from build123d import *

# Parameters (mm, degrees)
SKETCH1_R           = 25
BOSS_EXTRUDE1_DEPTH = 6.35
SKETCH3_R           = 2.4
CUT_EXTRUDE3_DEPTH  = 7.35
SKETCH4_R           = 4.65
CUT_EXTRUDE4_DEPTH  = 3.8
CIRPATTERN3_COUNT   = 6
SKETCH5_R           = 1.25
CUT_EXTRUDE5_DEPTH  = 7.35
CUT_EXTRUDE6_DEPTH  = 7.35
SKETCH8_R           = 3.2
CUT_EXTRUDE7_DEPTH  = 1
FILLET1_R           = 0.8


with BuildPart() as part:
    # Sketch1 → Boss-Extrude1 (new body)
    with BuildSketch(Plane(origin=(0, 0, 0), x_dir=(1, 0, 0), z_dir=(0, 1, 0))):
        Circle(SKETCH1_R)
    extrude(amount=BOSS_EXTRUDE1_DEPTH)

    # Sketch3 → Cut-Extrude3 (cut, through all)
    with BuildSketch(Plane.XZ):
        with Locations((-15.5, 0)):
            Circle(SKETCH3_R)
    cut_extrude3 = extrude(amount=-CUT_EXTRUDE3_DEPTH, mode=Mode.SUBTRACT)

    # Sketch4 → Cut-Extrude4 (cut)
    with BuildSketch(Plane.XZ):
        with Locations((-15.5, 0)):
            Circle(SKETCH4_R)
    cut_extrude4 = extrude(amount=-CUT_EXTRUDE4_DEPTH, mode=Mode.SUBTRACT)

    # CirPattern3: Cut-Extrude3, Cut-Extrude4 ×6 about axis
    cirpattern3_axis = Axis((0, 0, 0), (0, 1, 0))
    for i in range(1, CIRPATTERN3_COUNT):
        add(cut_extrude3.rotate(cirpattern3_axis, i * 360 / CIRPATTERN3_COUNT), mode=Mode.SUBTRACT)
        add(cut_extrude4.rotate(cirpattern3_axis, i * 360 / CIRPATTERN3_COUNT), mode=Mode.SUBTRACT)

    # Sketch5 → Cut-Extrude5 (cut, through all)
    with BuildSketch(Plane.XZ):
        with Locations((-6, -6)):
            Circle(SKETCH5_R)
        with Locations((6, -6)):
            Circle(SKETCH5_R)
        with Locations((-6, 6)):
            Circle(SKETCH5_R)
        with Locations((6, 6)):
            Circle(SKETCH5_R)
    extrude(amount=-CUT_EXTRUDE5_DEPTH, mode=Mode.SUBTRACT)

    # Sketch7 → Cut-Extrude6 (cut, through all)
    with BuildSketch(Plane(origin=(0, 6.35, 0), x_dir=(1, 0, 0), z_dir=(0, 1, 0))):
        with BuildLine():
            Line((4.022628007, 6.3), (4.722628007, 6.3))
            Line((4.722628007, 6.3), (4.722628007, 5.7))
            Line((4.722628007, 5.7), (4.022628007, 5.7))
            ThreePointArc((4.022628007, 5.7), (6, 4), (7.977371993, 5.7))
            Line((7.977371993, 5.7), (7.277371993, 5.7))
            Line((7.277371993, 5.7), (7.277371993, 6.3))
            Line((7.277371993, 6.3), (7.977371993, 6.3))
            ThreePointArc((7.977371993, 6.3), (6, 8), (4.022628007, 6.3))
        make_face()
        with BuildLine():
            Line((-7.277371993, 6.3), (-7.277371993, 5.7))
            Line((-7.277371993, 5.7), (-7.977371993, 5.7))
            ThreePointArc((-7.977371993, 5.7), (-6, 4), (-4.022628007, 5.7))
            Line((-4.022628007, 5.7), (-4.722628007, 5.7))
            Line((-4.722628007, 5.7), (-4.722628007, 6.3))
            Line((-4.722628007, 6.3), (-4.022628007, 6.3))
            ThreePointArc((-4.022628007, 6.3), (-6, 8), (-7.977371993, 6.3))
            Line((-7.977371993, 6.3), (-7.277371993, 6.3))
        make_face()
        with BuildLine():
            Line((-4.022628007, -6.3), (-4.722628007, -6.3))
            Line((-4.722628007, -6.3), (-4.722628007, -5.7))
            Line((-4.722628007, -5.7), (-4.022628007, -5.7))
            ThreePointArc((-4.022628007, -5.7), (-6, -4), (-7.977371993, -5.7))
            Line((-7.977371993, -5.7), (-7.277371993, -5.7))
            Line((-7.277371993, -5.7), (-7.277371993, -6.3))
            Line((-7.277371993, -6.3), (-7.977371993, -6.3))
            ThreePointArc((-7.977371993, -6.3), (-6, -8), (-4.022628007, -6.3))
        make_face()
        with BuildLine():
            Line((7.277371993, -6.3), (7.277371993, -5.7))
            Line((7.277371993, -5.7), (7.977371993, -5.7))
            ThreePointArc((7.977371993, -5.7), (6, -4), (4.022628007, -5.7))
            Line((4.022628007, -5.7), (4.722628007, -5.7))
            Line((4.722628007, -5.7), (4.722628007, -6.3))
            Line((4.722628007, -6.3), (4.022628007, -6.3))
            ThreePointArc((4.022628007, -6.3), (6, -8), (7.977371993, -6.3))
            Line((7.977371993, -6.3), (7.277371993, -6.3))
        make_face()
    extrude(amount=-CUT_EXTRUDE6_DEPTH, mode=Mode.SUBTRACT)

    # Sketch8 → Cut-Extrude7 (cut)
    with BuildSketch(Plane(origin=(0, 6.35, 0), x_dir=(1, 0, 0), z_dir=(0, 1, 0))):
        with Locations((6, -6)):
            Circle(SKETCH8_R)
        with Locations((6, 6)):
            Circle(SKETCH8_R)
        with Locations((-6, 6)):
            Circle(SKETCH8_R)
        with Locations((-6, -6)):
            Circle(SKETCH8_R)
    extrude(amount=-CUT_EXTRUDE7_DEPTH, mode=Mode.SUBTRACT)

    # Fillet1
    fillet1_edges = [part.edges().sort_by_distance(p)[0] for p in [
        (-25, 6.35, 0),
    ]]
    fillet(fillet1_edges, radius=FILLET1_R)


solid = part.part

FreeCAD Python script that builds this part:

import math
import FreeCAD as App
import Part
import Sketcher
from FreeCAD import Vector


def edges_at(feature, points):
    """Names of the edges that pass closest to the given points."""
    edges = feature.Shape.Edges
    near = lambda p: min(range(len(edges)), key=lambda i: edges[i].distToShape(Part.Vertex(*p))[0])
    return sorted({f"Edge{near(p) + 1}" for p in points})

doc = App.newDocument("Part")
params = doc.addObject("Spreadsheet::Sheet", "Params")
for row, (alias, value) in enumerate([
    ("sketch1_diameter", "50 mm"),
    ("pad1_length", "6.35 mm"),
    ("sketch2_diameter", "4.8 mm"),
    ("sketch3_diameter", "9.3 mm"),
    ("pocket2_length", "3.8 mm"),
    ("sketch4_diameter", "2.5 mm"),
    ("sketch5_radius", "2 mm"),
    ("sketch5_width", "0.7 mm"),
    ("sketch5_height", "0.6 mm"),
    ("sketch6_diameter", "6.4 mm"),
    ("pocket5_length", "1 mm"),
    ("fillet_radius", "0.8 mm"),
], start=1):
    params.set(f"A{row}", alias)
    params.set(f"B{row}", "=" + value)
    params.setAlias(f"B{row}", alias)

body = doc.addObject("PartDesign::Body", "Body")

# Sketch on XZ plane
sketch1 = body.newObject("Sketcher::SketchObject", "Sketch")
sketch1.AttachmentSupport = (doc.getObject("XZ_Plane"), [""])
sketch1.MapMode = "FlatFace"
sketch1.addGeometry(Part.Circle(Vector(0, 0, 0), Vector(0, 0, 1), 25), False)
sketch1.addConstraint(Sketcher.Constraint("Coincident", 0, 3, -1, 1))
sketch1.addConstraint(Sketcher.Constraint("Diameter", 0, 50.0))
sketch1.setExpression("Constraints[1]", "Params.sketch1_diameter")
pad1 = body.newObject("PartDesign::Pad", "Pad")
pad1.Profile = sketch1
pad1.setExpression("Length", "Params.pad1_length")
pad1.Reversed = True

# Sketch on XZ plane
sketch2 = body.newObject("Sketcher::SketchObject", "Sketch001")
sketch2.AttachmentSupport = (doc.getObject("XZ_Plane"), [""])
sketch2.MapMode = "FlatFace"
sketch2.addGeometry(Part.Circle(Vector(-15.5, 0, 0), Vector(0, 0, 1), 2.4), False)
sketch2.addConstraint(Sketcher.Constraint("PointOnObject", 0, 3, -1))
sketch2.addConstraint(Sketcher.Constraint("Diameter", 0, 4.8))
sketch2.addConstraint(Sketcher.Constraint("DistanceX", 0, 3, -1, 1, 15.5))
sketch2.setExpression("Constraints[1]", "Params.sketch2_diameter")
pocket1 = body.newObject("PartDesign::Pocket", "Pocket")
pocket1.Profile = sketch2
pocket1.Type = "ThroughAll"

# Sketch on XZ plane
sketch3 = body.newObject("Sketcher::SketchObject", "Sketch002")
sketch3.AttachmentSupport = (doc.getObject("XZ_Plane"), [""])
sketch3.MapMode = "FlatFace"
sketch3.addGeometry(Part.Circle(Vector(-15.5, 0, 0), Vector(0, 0, 1), 4.7), False)
sketch3.addConstraint(Sketcher.Constraint("PointOnObject", 0, 3, -1))
sketch3.addConstraint(Sketcher.Constraint("Diameter", 0, 9.3))
sketch3.addConstraint(Sketcher.Constraint("DistanceX", 0, 3, -1, 1, 15.5))
sketch3.setExpression("Constraints[1]", "Params.sketch3_diameter")
pocket2 = body.newObject("PartDesign::Pocket", "Pocket001")
pocket2.Profile = sketch3
pocket2.setExpression("Length", "Params.pocket2_length")
doc.recompute()

polarpattern = body.newObject("PartDesign::PolarPattern", "PolarPattern")
polarpattern.Originals = [pocket1, pocket2]
polarpattern.Axis = (doc.getObject("Y_Axis"), [""])
polarpattern.Angle = 360
polarpattern.Occurrences = 6
body.Tip = polarpattern

# Sketch on XZ plane
sketch4 = body.newObject("Sketcher::SketchObject", "Sketch003")
sketch4.AttachmentSupport = (doc.getObject("XZ_Plane"), [""])
sketch4.MapMode = "FlatFace"
sketch4.addGeometry(Part.Circle(Vector(-6, -6, 0), Vector(0, 0, 1), 1.2), False)
sketch4.addGeometry(Part.Circle(Vector(6, -6, 0), Vector(0, 0, 1), 1.2), False)
sketch4.addGeometry(Part.Circle(Vector(-6, 6, 0), Vector(0, 0, 1), 1.2), False)
sketch4.addGeometry(Part.Circle(Vector(6, 6, 0), Vector(0, 0, 1), 1.2), False)
sketch4.addConstraint(Sketcher.Constraint("Equal", 0, 1))
sketch4.addConstraint(Sketcher.Constraint("Equal", 1, 2))
sketch4.addConstraint(Sketcher.Constraint("Equal", 2, 3))
sketch4.addConstraint(Sketcher.Constraint("Symmetric", 1, 3, 2, 3, -1, 1))
sketch4.addConstraint(Sketcher.Constraint("Symmetric", 0, 3, 3, 3, -1, 1))
sketch4.addConstraint(Sketcher.Constraint("Symmetric", 0, 3, 1, 3, -2))
sketch4.addConstraint(Sketcher.Constraint("Diameter", 0, 2.5))
sketch4.addConstraint(Sketcher.Constraint("DistanceX", 0, 3, -1, 1, 6.0))
sketch4.addConstraint(Sketcher.Constraint("DistanceY", 0, 3, -1, 1, 6.0))
sketch4.setExpression("Constraints[6]", "Params.sketch4_diameter")
pocket3 = body.newObject("PartDesign::Pocket", "Pocket002")
pocket3.Profile = sketch4
pocket3.Type = "ThroughAll"

# Sketch on XZ plane
sketch5 = body.newObject("Sketcher::SketchObject", "Sketch004")
sketch5.AttachmentSupport = (doc.getObject("XZ_Plane"), [""])
sketch5.MapMode = "FlatFace"
sketch5.AttachmentOffset = App.Placement(Vector(0, 0, -6.35), App.Rotation())
sketch5.addGeometry(Part.LineSegment(Vector(4, -6.3, 0), Vector(4.7, -6.3, 0)), False)
sketch5.addGeometry(Part.LineSegment(Vector(4.7, -6.3, 0), Vector(4.7, -5.7, 0)), False)
sketch5.addGeometry(Part.LineSegment(Vector(4.7, -5.7, 0), Vector(4, -5.7, 0)), False)
sketch5.addGeometry(Part.ArcOfCircle(Part.Circle(Vector(6, -6, 0), Vector(0, 0, 1), 2), math.radians(9), math.radians(171)), False)
sketch5.addGeometry(Part.LineSegment(Vector(8, -5.7, 0), Vector(7.3, -5.7, 0)), False)
sketch5.addGeometry(Part.LineSegment(Vector(7.3, -5.7, 0), Vector(7.3, -6.3, 0)), False)
sketch5.addGeometry(Part.LineSegment(Vector(7.3, -6.3, 0), Vector(8, -6.3, 0)), False)
sketch5.addGeometry(Part.ArcOfCircle(Part.Circle(Vector(6, -6, 0), Vector(0, 0, 1), 2), math.radians(-171), math.radians(-9)), False)
sketch5.addGeometry(Part.LineSegment(Vector(-7.3, -6.3, 0), Vector(-7.3, -5.7, 0)), False)
sketch5.addGeometry(Part.LineSegment(Vector(-7.3, -5.7, 0), Vector(-8, -5.7, 0)), False)
sketch5.addGeometry(Part.ArcOfCircle(Part.Circle(Vector(-6, -6, 0), Vector(0, 0, 1), 2), math.radians(9), math.radians(171)), False)
sketch5.addGeometry(Part.LineSegment(Vector(-4, -5.7, 0), Vector(-4.7, -5.7, 0)), False)
sketch5.addGeometry(Part.LineSegment(Vector(-4.7, -5.7, 0), Vector(-4.7, -6.3, 0)), False)
sketch5.addGeometry(Part.LineSegment(Vector(-4.7, -6.3, 0), Vector(-4, -6.3, 0)), False)
sketch5.addGeometry(Part.ArcOfCircle(Part.Circle(Vector(-6, -6, 0), Vector(0, 0, 1), 2), math.radians(-171), math.radians(-9)), False)
sketch5.addGeometry(Part.LineSegment(Vector(-8, -6.3, 0), Vector(-7.3, -6.3, 0)), False)
sketch5.addGeometry(Part.LineSegment(Vector(-4, 6.3, 0), Vector(-4.7, 6.3, 0)), False)
sketch5.addGeometry(Part.LineSegment(Vector(-4.7, 6.3, 0), Vector(-4.7, 5.7, 0)), False)
sketch5.addGeometry(Part.LineSegment(Vector(-4.7, 5.7, 0), Vector(-4, 5.7, 0)), False)
sketch5.addGeometry(Part.ArcOfCircle(Part.Circle(Vector(-6, 6, 0), Vector(0, 0, 1), 2), math.radians(-171), math.radians(-9)), False)
sketch5.addGeometry(Part.LineSegment(Vector(-8, 5.7, 0), Vector(-7.3, 5.7, 0)), False)
sketch5.addGeometry(Part.LineSegment(Vector(-7.3, 5.7, 0), Vector(-7.3, 6.3, 0)), False)
sketch5.addGeometry(Part.LineSegment(Vector(-7.3, 6.3, 0), Vector(-8, 6.3, 0)), False)
sketch5.addGeometry(Part.ArcOfCircle(Part.Circle(Vector(-6, 6, 0), Vector(0, 0, 1), 2), math.radians(9), math.radians(171)), False)
sketch5.addGeometry(Part.LineSegment(Vector(7.3, 6.3, 0), Vector(7.3, 5.7, 0)), False)
sketch5.addGeometry(Part.LineSegment(Vector(7.3, 5.7, 0), Vector(8, 5.7, 0)), False)
sketch5.addGeometry(Part.ArcOfCircle(Part.Circle(Vector(6, 6, 0), Vector(0, 0, 1), 2), math.radians(-171), math.radians(-9)), False)
sketch5.addGeometry(Part.LineSegment(Vector(4, 5.7, 0), Vector(4.7, 5.7, 0)), False)
sketch5.addGeometry(Part.LineSegment(Vector(4.7, 5.7, 0), Vector(4.7, 6.3, 0)), False)
sketch5.addGeometry(Part.LineSegment(Vector(4.7, 6.3, 0), Vector(4, 6.3, 0)), False)
sketch5.addGeometry(Part.ArcOfCircle(Part.Circle(Vector(6, 6, 0), Vector(0, 0, 1), 2), math.radians(9), math.radians(171)), False)
sketch5.addGeometry(Part.LineSegment(Vector(8, 6.3, 0), Vector(7.3, 6.3, 0)), False)
sketch5.addConstraint(Sketcher.Constraint("Coincident", 0, 2, 1, 1))
sketch5.addConstraint(Sketcher.Constraint("Coincident", 1, 2, 2, 1))
sketch5.addConstraint(Sketcher.Constraint("Coincident", 2, 2, 3, 2))
sketch5.addConstraint(Sketcher.Constraint("Coincident", 3, 1, 4, 1))
sketch5.addConstraint(Sketcher.Constraint("Coincident", 4, 2, 5, 1))
sketch5.addConstraint(Sketcher.Constraint("Coincident", 5, 2, 6, 1))
sketch5.addConstraint(Sketcher.Constraint("Coincident", 6, 2, 7, 2))
sketch5.addConstraint(Sketcher.Constraint("Coincident", 7, 1, 0, 1))
sketch5.addConstraint(Sketcher.Constraint("Coincident", 8, 2, 9, 1))
sketch5.addConstraint(Sketcher.Constraint("Coincident", 9, 2, 10, 2))
sketch5.addConstraint(Sketcher.Constraint("Coincident", 10, 1, 11, 1))
sketch5.addConstraint(Sketcher.Constraint("Coincident", 11, 2, 12, 1))
sketch5.addConstraint(Sketcher.Constraint("Coincident", 12, 2, 13, 1))
sketch5.addConstraint(Sketcher.Constraint("Coincident", 13, 2, 14, 2))
sketch5.addConstraint(Sketcher.Constraint("Coincident", 14, 1, 15, 1))
sketch5.addConstraint(Sketcher.Constraint("Coincident", 15, 2, 8, 1))
sketch5.addConstraint(Sketcher.Constraint("Coincident", 16, 2, 17, 1))
sketch5.addConstraint(Sketcher.Constraint("Coincident", 17, 2, 18, 1))
sketch5.addConstraint(Sketcher.Constraint("Coincident", 18, 2, 19, 2))
sketch5.addConstraint(Sketcher.Constraint("Coincident", 19, 1, 20, 1))
sketch5.addConstraint(Sketcher.Constraint("Coincident", 20, 2, 21, 1))
sketch5.addConstraint(Sketcher.Constraint("Coincident", 21, 2, 22, 1))
sketch5.addConstraint(Sketcher.Constraint("Coincident", 22, 2, 23, 2))
sketch5.addConstraint(Sketcher.Constraint("Coincident", 23, 1, 16, 1))
sketch5.addConstraint(Sketcher.Constraint("Coincident", 24, 2, 25, 1))
sketch5.addConstraint(Sketcher.Constraint("Coincident", 25, 2, 26, 2))
sketch5.addConstraint(Sketcher.Constraint("Coincident", 26, 1, 27, 1))
sketch5.addConstraint(Sketcher.Constraint("Coincident", 27, 2, 28, 1))
sketch5.addConstraint(Sketcher.Constraint("Coincident", 28, 2, 29, 1))
sketch5.addConstraint(Sketcher.Constraint("Coincident", 29, 2, 30, 2))
sketch5.addConstraint(Sketcher.Constraint("Coincident", 30, 1, 31, 1))
sketch5.addConstraint(Sketcher.Constraint("Coincident", 31, 2, 24, 1))
sketch5.addConstraint(Sketcher.Constraint("Horizontal", 0))
sketch5.addConstraint(Sketcher.Constraint("Vertical", 1))
sketch5.addConstraint(Sketcher.Constraint("Horizontal", 2))
sketch5.addConstraint(Sketcher.Constraint("Horizontal", 4))
sketch5.addConstraint(Sketcher.Constraint("Vertical", 5))
sketch5.addConstraint(Sketcher.Constraint("Horizontal", 6))
sketch5.addConstraint(Sketcher.Constraint("Vertical", 8))
sketch5.addConstraint(Sketcher.Constraint("Horizontal", 9))
sketch5.addConstraint(Sketcher.Constraint("Horizontal", 11))
sketch5.addConstraint(Sketcher.Constraint("Vertical", 12))
sketch5.addConstraint(Sketcher.Constraint("Horizontal", 13))
sketch5.addConstraint(Sketcher.Constraint("Horizontal", 15))
sketch5.addConstraint(Sketcher.Constraint("Horizontal", 16))
sketch5.addConstraint(Sketcher.Constraint("Vertical", 17))
sketch5.addConstraint(Sketcher.Constraint("Horizontal", 18))
sketch5.addConstraint(Sketcher.Constraint("Horizontal", 20))
sketch5.addConstraint(Sketcher.Constraint("Vertical", 21))
sketch5.addConstraint(Sketcher.Constraint("Horizontal", 22))
sketch5.addConstraint(Sketcher.Constraint("Vertical", 24))
sketch5.addConstraint(Sketcher.Constraint("Horizontal", 25))
sketch5.addConstraint(Sketcher.Constraint("Horizontal", 27))
sketch5.addConstraint(Sketcher.Constraint("Vertical", 28))
sketch5.addConstraint(Sketcher.Constraint("Horizontal", 29))
sketch5.addConstraint(Sketcher.Constraint("Horizontal", 31))
sketch5.addConstraint(Sketcher.Constraint("Coincident", 7, 3, 3, 3))
sketch5.addConstraint(Sketcher.Constraint("Coincident", 14, 3, 10, 3))
sketch5.addConstraint(Sketcher.Constraint("Coincident", 23, 3, 19, 3))
sketch5.addConstraint(Sketcher.Constraint("Coincident", 30, 3, 26, 3))
sketch5.addConstraint(Sketcher.Constraint("Equal", 3, 7))
sketch5.addConstraint(Sketcher.Constraint("Equal", 7, 10))
sketch5.addConstraint(Sketcher.Constraint("Equal", 10, 14))
sketch5.addConstraint(Sketcher.Constraint("Equal", 14, 19))
sketch5.addConstraint(Sketcher.Constraint("Equal", 19, 23))
sketch5.addConstraint(Sketcher.Constraint("Equal", 23, 26))
sketch5.addConstraint(Sketcher.Constraint("Equal", 26, 30))
sketch5.addConstraint(Sketcher.Constraint("Symmetric", 3, 3, 19, 3, -1, 1))
sketch5.addConstraint(Sketcher.Constraint("Symmetric", 10, 3, 26, 3, -1, 1))
sketch5.addConstraint(Sketcher.Constraint("Symmetric", 0, 2, 16, 2, -1, 1))
sketch5.addConstraint(Sketcher.Constraint("Symmetric", 4, 2, 20, 2, -1, 1))
sketch5.addConstraint(Sketcher.Constraint("Symmetric", 8, 2, 24, 2, -1, 1))
sketch5.addConstraint(Sketcher.Constraint("Symmetric", 11, 2, 27, 2, -1, 1))
sketch5.addConstraint(Sketcher.Constraint("Symmetric", 3, 3, 10, 3, -2))
sketch5.addConstraint(Sketcher.Constraint("Symmetric", 4, 2, 8, 2, -2))
sketch5.addConstraint(Sketcher.Constraint("Symmetric", 1, 2, 11, 2, -2))
sketch5.addConstraint(Sketcher.Constraint("Horizontal", 2, 2, 3, 1))
sketch5.addConstraint(Sketcher.Constraint("Horizontal", 0, 2, 5, 2))
sketch5.addConstraint(Sketcher.Constraint("Horizontal", 7, 1, 12, 2))
sketch5.addConstraint(Sketcher.Constraint("Horizontal", 13, 2, 14, 1))
sketch5.addConstraint(Sketcher.Constraint("Horizontal", 18, 2, 19, 1))
sketch5.addConstraint(Sketcher.Constraint("Horizontal", 16, 2, 21, 2))
sketch5.addConstraint(Sketcher.Constraint("Horizontal", 23, 1, 28, 2))
sketch5.addConstraint(Sketcher.Constraint("Horizontal", 29, 2, 30, 1))
sketch5.addConstraint(Sketcher.Constraint("Vertical", 3, 1, 6, 2))
sketch5.addConstraint(Sketcher.Constraint("Equal", 2, 4))
sketch5.addConstraint(Sketcher.Constraint("Radius", 3, 2.0))
sketch5.addConstraint(Sketcher.Constraint("DistanceX", 0, 1, 0, 2, 0.7))
sketch5.addConstraint(Sketcher.Constraint("DistanceY", 1, 1, 1, 2, 0.6))
sketch5.addConstraint(Sketcher.Constraint("DistanceX", -1, 1, 3, 3, 6.0))
sketch5.addConstraint(Sketcher.Constraint("DistanceY", 3, 3, -1, 1, 6.0))
sketch5.setExpression("Constraints[86]", "Params.sketch5_radius")
sketch5.setExpression("Constraints[87]", "Params.sketch5_width")
sketch5.setExpression("Constraints[88]", "Params.sketch5_height")
pocket4 = body.newObject("PartDesign::Pocket", "Pocket003")
pocket4.Profile = sketch5
pocket4.Type = "ThroughAll"
pocket4.Reversed = True

# Sketch on XZ plane
sketch6 = body.newObject("Sketcher::SketchObject", "Sketch005")
sketch6.AttachmentSupport = (doc.getObject("XZ_Plane"), [""])
sketch6.MapMode = "FlatFace"
sketch6.AttachmentOffset = App.Placement(Vector(0, 0, -6.35), App.Rotation())
sketch6.addGeometry(Part.Circle(Vector(6, 6, 0), Vector(0, 0, 1), 3.2), False)
sketch6.addGeometry(Part.Circle(Vector(6, -6, 0), Vector(0, 0, 1), 3.2), False)
sketch6.addGeometry(Part.Circle(Vector(-6, -6, 0), Vector(0, 0, 1), 3.2), False)
sketch6.addGeometry(Part.Circle(Vector(-6, 6, 0), Vector(0, 0, 1), 3.2), False)
sketch6.addConstraint(Sketcher.Constraint("Equal", 0, 1))
sketch6.addConstraint(Sketcher.Constraint("Equal", 1, 2))
sketch6.addConstraint(Sketcher.Constraint("Equal", 2, 3))
sketch6.addConstraint(Sketcher.Constraint("Symmetric", 0, 3, 2, 3, -1, 1))
sketch6.addConstraint(Sketcher.Constraint("Symmetric", 1, 3, 3, 3, -1, 1))
sketch6.addConstraint(Sketcher.Constraint("Symmetric", 1, 3, 2, 3, -2))
sketch6.addConstraint(Sketcher.Constraint("Diameter", 0, 6.4))
sketch6.addConstraint(Sketcher.Constraint("DistanceX", -1, 1, 0, 3, 6.0))
sketch6.addConstraint(Sketcher.Constraint("DistanceY", -1, 1, 0, 3, 6.0))
sketch6.setExpression("Constraints[6]", "Params.sketch6_diameter")
pocket5 = body.newObject("PartDesign::Pocket", "Pocket004")
pocket5.Profile = sketch6
pocket5.setExpression("Length", "Params.pocket5_length")
pocket5.Reversed = True
doc.recompute()

fillet = body.newObject("PartDesign::Fillet", "Fillet")
fillet.Base = (pocket5, edges_at(pocket5, [(-25, 6.35, 0)]))
fillet.setExpression("Radius", "Params.fillet_radius")

doc.recompute()
